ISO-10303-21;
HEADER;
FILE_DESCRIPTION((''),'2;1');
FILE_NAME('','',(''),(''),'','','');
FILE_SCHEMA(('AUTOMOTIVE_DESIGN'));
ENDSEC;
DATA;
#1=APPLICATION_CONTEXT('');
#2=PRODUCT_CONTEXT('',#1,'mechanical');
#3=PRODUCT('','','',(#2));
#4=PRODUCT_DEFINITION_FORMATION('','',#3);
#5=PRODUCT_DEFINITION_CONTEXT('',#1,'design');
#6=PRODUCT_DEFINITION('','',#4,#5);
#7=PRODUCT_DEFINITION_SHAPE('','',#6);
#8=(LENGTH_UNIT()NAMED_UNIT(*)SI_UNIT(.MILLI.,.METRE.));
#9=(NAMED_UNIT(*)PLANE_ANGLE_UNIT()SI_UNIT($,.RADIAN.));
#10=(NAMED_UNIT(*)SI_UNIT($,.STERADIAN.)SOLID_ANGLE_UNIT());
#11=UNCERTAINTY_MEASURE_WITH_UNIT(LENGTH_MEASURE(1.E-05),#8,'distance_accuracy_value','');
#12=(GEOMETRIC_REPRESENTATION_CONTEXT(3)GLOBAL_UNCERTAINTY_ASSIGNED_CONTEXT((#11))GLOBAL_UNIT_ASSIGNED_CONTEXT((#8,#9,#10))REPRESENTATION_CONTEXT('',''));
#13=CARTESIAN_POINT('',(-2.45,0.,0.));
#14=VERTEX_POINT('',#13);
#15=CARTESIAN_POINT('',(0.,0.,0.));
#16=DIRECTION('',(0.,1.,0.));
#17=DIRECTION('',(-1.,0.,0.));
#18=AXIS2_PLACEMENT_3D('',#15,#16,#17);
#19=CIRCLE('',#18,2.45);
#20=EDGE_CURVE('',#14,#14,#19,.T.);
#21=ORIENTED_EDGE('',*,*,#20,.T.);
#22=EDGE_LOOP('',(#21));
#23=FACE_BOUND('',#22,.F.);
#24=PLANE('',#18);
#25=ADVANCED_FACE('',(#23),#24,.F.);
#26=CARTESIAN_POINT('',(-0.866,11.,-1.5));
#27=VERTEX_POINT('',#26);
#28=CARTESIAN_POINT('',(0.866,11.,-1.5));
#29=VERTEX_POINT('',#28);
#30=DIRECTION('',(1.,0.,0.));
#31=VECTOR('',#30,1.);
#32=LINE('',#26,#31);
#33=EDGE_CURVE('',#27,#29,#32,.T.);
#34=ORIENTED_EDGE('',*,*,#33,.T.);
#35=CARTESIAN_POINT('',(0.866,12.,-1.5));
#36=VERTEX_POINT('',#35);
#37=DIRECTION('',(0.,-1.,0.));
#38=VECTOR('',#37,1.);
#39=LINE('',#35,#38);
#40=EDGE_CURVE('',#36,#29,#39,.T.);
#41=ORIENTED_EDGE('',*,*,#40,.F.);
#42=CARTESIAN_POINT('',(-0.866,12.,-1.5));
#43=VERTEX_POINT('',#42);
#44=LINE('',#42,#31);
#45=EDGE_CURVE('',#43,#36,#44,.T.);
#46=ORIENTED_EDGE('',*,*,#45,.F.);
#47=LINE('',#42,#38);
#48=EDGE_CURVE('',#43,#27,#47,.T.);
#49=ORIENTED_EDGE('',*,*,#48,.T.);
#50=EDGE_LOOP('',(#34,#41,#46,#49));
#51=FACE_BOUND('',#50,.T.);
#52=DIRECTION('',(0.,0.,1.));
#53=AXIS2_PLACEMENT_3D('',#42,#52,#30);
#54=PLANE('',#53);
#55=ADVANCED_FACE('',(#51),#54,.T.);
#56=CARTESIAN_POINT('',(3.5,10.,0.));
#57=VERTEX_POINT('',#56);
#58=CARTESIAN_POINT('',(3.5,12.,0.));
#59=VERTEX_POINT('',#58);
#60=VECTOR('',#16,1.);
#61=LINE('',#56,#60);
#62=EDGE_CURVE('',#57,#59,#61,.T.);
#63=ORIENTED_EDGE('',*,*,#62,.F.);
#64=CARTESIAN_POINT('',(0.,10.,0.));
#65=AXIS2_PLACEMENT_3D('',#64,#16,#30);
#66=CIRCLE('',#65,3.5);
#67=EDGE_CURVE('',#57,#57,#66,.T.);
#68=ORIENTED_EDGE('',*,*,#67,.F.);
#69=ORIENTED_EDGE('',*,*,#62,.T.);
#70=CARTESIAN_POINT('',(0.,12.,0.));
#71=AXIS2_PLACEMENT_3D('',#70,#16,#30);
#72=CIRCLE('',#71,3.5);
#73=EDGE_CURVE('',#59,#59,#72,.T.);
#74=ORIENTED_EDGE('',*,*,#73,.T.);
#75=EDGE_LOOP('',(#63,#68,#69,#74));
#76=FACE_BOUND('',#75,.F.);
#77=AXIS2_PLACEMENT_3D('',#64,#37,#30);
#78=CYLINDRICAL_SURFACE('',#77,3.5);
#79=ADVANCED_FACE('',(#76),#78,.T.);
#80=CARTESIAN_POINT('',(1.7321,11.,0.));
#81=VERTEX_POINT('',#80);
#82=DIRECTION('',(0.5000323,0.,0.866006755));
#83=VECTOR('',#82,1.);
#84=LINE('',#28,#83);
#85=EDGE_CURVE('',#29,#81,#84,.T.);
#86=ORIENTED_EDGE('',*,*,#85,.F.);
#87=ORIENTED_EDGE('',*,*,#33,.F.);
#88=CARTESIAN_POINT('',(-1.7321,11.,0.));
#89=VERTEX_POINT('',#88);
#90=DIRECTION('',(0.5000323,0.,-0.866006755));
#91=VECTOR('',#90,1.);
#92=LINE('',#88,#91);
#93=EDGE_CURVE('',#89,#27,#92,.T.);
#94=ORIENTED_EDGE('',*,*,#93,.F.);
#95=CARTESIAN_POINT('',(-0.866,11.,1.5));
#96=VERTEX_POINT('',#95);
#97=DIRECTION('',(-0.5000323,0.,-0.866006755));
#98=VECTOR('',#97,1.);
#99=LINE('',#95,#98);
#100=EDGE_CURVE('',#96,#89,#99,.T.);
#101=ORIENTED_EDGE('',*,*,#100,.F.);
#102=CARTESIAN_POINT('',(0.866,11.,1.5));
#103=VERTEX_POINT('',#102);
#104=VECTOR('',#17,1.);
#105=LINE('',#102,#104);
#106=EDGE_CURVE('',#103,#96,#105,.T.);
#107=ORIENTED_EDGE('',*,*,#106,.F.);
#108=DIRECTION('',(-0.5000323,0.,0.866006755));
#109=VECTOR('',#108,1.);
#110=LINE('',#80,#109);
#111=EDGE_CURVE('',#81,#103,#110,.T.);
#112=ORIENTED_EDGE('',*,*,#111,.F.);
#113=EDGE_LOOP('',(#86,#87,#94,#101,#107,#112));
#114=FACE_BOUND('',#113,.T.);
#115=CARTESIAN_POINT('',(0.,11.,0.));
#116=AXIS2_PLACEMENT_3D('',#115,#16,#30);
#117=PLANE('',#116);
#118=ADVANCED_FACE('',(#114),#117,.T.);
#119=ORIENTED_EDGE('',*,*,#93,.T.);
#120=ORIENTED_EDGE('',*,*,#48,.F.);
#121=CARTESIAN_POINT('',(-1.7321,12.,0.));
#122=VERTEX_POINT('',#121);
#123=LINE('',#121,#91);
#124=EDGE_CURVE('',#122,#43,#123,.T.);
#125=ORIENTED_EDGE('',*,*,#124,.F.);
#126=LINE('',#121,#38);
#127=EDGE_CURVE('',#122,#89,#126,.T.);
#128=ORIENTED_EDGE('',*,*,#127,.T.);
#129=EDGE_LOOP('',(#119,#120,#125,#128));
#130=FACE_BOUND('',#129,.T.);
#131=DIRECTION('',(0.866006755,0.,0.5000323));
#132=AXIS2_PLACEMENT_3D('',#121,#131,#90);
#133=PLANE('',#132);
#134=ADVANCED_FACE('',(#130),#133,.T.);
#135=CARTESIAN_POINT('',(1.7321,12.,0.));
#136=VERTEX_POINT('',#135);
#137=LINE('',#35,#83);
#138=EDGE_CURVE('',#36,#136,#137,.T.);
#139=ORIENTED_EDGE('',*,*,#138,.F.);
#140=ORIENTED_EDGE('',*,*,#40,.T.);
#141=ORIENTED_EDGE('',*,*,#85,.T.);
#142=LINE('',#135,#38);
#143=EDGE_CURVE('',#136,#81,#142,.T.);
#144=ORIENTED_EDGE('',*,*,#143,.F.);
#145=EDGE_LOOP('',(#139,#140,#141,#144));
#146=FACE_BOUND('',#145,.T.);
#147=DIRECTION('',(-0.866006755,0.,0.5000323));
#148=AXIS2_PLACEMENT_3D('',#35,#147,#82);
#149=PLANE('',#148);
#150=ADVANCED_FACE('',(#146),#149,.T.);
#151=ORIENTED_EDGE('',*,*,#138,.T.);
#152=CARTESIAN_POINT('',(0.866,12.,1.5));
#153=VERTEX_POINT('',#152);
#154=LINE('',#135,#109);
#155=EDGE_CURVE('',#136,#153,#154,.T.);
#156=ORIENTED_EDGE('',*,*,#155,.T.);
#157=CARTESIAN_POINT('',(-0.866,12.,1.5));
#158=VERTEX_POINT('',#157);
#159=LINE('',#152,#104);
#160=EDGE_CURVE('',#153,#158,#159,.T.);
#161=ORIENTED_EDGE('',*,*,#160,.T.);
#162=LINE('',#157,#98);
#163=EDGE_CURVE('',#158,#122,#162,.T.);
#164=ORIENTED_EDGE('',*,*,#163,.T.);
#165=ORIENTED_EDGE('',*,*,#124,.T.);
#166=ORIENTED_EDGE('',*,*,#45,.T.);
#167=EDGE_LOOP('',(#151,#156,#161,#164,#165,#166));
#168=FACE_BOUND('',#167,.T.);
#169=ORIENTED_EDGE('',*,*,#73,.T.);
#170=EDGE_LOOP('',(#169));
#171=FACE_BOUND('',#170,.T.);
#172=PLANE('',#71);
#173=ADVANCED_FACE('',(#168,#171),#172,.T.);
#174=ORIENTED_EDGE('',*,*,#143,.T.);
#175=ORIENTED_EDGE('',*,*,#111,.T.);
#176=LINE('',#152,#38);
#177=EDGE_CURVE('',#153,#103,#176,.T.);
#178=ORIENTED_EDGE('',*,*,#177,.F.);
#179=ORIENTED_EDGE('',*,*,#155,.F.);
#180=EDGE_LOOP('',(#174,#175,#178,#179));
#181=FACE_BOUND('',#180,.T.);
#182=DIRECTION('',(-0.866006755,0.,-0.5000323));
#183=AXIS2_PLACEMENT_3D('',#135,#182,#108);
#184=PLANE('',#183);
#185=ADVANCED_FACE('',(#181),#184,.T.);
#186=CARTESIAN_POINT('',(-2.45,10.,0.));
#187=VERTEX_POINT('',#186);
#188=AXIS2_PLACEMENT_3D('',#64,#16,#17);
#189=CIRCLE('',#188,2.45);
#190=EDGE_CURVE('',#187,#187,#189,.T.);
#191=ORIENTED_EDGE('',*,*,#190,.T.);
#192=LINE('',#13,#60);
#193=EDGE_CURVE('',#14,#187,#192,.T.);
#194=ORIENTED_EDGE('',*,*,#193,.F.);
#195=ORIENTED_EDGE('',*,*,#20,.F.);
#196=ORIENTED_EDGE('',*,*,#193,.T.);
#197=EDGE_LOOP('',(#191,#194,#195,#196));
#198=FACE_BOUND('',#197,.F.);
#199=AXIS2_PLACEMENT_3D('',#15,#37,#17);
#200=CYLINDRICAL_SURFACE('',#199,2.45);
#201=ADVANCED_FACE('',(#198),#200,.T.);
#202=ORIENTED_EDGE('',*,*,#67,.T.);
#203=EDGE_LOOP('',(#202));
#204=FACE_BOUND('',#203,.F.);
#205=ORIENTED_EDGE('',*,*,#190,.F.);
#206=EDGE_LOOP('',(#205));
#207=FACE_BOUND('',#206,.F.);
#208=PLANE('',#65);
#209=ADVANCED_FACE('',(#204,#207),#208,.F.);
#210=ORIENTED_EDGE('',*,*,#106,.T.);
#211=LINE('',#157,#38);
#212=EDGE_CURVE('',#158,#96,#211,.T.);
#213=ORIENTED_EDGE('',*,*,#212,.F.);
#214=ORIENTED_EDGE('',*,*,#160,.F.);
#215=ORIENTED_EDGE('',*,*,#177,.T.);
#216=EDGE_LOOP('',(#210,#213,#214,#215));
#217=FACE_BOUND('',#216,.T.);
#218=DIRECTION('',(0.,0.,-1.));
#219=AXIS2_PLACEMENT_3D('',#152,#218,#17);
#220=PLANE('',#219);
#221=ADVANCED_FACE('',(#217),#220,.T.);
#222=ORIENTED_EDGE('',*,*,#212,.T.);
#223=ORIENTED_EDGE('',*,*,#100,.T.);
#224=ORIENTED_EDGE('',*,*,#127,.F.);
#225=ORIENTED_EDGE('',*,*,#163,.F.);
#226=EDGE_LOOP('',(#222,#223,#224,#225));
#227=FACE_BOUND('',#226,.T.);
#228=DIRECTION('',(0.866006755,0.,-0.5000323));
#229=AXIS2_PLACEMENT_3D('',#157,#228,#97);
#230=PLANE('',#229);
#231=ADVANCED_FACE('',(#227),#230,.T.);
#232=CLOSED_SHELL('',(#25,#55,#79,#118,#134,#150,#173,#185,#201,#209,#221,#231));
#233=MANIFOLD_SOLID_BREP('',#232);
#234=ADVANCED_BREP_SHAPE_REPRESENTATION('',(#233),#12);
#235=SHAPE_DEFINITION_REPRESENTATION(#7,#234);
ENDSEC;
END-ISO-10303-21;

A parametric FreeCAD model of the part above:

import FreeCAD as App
import Part
import Sketcher

doc = App.newDocument("Part")
body = doc.addObject("PartDesign::Body", "Body")

# Sketch on XZ plane
sketch1 = doc.addObject("Sketcher::SketchObject", "Sketch")
body.addObject(sketch1)
sketch1.AttachmentSupport = (doc.XZ_Plane, [""])
sketch1.MapMode = "FlatFace"
sketch1.addGeometry(Part.Circle(App.Vector(0, 0, 0), App.Vector(0, 0, 1), 2.45), False)
sketch1.addConstraint(Sketcher.Constraint("Coincident", 0, 3, -1, 1))
sketch1.addConstraint(Sketcher.Constraint("Diameter", 0, 4.9))
pad1 = doc.addObject("PartDesign::Pad", "Pad")
body.addObject(pad1)
pad1.Profile = sketch1
pad1.Length = 10
pad1.Reversed = True

# Sketch on XZ plane
sketch2 = doc.addObject("Sketcher::SketchObject", "Sketch001")
body.addObject(sketch2)
sketch2.AttachmentSupport = (doc.XZ_Plane, [""])
sketch2.MapMode = "FlatFace"
sketch2.AttachmentOffset = App.Placement(App.Vector(0, 0, -10), App.Rotation())
sketch2.addGeometry(Part.Circle(App.Vector(0, 0, 0), App.Vector(0, 0, 1), 3.5), False)
sketch2.addConstraint(Sketcher.Constraint("Coincident", 0, 3, -1, 1))
sketch2.addConstraint(Sketcher.Constraint("Diameter", 0, 7.0))
pad2 = doc.addObject("PartDesign::Pad", "Pad001")
body.addObject(pad2)
pad2.Profile = sketch2
pad2.Length = 2
pad2.Reversed = True

# Sketch on XZ plane
sketch3 = doc.addObject("Sketcher::SketchObject", "Sketch002")
body.addObject(sketch3)
sketch3.AttachmentSupport = (doc.XZ_Plane, [""])
sketch3.MapMode = "FlatFace"
sketch3.AttachmentOffset = App.Placement(App.Vector(0, 0, -12), App.Rotation())
sketch3.addGeometry(Part.LineSegment(App.Vector(1.7321, 0, 0), App.Vector(0.866, -1.5, 0)), False)
sketch3.addGeometry(Part.LineSegment(App.Vector(0.866, -1.5, 0), App.Vector(-0.866, -1.5, 0)), False)
sketch3.addGeometry(Part.LineSegment(App.Vector(-0.866, -1.5, 0), App.Vector(-1.7321, 0, 0)), False)
sketch3.addGeometry(Part.LineSegment(App.Vector(-1.7321, 0, 0), App.Vector(-0.866, 1.5, 0)), False)
sketch3.addGeometry(Part.LineSegment(App.Vector(-0.866, 1.5, 0), App.Vector(0.866, 1.5, 0)), False)
sketch3.addGeometry(Part.LineSegment(App.Vector(0.866, 1.5, 0), App.Vector(1.7321, 0, 0)), False)
sketch3.addConstraint(Sketcher.Constraint("Coincident", 0, 2, 1, 1))
sketch3.addConstraint(Sketcher.Constraint("Coincident", 1, 2, 2, 1))
sketch3.addConstraint(Sketcher.Constraint("Coincident", 2, 2, 3, 1))
sketch3.addConstraint(Sketcher.Constraint("Coincident", 3, 2, 4, 1))
sketch3.addConstraint(Sketcher.Constraint("Coincident", 4, 2, 5, 1))
sketch3.addConstraint(Sketcher.Constraint("Coincident", 5, 2, 0, 1))
sketch3.addConstraint(Sketcher.Constraint("Horizontal", 1))
sketch3.addConstraint(Sketcher.Constraint("Horizontal", 4))
sketch3.addConstraint(Sketcher.Constraint("Symmetric", 0, 2, 3, 2, -1, 1))
sketch3.addConstraint(Sketcher.Constraint("Symmetric", 2, 2, 5, 2, -1, 1))
sketch3.addConstraint(Sketcher.Constraint("PointOnObject", 2, 2, -1))
sketch3.addConstraint(Sketcher.Constraint("Parallel", 2, 5))
sketch3.addConstraint(Sketcher.Constraint("Vertical", 1, 2, 3, 2))
sketch3.addConstraint(Sketcher.Constraint("DistanceY", 1, 2, 3, 2, 3.0))
sketch3.addConstraint(Sketcher.Constraint("DistanceX", 1, 2, 1, 1, 1.732))
sketch3.addConstraint(Sketcher.Constraint("Distance", 0, 1.732))
pocket1 = doc.addObject("PartDesign::Pocket", "Pocket")
body.addObject(pocket1)
pocket1.Profile = sketch3
pocket1.Length = 1
pocket1.Reversed = True

doc.recompute()
